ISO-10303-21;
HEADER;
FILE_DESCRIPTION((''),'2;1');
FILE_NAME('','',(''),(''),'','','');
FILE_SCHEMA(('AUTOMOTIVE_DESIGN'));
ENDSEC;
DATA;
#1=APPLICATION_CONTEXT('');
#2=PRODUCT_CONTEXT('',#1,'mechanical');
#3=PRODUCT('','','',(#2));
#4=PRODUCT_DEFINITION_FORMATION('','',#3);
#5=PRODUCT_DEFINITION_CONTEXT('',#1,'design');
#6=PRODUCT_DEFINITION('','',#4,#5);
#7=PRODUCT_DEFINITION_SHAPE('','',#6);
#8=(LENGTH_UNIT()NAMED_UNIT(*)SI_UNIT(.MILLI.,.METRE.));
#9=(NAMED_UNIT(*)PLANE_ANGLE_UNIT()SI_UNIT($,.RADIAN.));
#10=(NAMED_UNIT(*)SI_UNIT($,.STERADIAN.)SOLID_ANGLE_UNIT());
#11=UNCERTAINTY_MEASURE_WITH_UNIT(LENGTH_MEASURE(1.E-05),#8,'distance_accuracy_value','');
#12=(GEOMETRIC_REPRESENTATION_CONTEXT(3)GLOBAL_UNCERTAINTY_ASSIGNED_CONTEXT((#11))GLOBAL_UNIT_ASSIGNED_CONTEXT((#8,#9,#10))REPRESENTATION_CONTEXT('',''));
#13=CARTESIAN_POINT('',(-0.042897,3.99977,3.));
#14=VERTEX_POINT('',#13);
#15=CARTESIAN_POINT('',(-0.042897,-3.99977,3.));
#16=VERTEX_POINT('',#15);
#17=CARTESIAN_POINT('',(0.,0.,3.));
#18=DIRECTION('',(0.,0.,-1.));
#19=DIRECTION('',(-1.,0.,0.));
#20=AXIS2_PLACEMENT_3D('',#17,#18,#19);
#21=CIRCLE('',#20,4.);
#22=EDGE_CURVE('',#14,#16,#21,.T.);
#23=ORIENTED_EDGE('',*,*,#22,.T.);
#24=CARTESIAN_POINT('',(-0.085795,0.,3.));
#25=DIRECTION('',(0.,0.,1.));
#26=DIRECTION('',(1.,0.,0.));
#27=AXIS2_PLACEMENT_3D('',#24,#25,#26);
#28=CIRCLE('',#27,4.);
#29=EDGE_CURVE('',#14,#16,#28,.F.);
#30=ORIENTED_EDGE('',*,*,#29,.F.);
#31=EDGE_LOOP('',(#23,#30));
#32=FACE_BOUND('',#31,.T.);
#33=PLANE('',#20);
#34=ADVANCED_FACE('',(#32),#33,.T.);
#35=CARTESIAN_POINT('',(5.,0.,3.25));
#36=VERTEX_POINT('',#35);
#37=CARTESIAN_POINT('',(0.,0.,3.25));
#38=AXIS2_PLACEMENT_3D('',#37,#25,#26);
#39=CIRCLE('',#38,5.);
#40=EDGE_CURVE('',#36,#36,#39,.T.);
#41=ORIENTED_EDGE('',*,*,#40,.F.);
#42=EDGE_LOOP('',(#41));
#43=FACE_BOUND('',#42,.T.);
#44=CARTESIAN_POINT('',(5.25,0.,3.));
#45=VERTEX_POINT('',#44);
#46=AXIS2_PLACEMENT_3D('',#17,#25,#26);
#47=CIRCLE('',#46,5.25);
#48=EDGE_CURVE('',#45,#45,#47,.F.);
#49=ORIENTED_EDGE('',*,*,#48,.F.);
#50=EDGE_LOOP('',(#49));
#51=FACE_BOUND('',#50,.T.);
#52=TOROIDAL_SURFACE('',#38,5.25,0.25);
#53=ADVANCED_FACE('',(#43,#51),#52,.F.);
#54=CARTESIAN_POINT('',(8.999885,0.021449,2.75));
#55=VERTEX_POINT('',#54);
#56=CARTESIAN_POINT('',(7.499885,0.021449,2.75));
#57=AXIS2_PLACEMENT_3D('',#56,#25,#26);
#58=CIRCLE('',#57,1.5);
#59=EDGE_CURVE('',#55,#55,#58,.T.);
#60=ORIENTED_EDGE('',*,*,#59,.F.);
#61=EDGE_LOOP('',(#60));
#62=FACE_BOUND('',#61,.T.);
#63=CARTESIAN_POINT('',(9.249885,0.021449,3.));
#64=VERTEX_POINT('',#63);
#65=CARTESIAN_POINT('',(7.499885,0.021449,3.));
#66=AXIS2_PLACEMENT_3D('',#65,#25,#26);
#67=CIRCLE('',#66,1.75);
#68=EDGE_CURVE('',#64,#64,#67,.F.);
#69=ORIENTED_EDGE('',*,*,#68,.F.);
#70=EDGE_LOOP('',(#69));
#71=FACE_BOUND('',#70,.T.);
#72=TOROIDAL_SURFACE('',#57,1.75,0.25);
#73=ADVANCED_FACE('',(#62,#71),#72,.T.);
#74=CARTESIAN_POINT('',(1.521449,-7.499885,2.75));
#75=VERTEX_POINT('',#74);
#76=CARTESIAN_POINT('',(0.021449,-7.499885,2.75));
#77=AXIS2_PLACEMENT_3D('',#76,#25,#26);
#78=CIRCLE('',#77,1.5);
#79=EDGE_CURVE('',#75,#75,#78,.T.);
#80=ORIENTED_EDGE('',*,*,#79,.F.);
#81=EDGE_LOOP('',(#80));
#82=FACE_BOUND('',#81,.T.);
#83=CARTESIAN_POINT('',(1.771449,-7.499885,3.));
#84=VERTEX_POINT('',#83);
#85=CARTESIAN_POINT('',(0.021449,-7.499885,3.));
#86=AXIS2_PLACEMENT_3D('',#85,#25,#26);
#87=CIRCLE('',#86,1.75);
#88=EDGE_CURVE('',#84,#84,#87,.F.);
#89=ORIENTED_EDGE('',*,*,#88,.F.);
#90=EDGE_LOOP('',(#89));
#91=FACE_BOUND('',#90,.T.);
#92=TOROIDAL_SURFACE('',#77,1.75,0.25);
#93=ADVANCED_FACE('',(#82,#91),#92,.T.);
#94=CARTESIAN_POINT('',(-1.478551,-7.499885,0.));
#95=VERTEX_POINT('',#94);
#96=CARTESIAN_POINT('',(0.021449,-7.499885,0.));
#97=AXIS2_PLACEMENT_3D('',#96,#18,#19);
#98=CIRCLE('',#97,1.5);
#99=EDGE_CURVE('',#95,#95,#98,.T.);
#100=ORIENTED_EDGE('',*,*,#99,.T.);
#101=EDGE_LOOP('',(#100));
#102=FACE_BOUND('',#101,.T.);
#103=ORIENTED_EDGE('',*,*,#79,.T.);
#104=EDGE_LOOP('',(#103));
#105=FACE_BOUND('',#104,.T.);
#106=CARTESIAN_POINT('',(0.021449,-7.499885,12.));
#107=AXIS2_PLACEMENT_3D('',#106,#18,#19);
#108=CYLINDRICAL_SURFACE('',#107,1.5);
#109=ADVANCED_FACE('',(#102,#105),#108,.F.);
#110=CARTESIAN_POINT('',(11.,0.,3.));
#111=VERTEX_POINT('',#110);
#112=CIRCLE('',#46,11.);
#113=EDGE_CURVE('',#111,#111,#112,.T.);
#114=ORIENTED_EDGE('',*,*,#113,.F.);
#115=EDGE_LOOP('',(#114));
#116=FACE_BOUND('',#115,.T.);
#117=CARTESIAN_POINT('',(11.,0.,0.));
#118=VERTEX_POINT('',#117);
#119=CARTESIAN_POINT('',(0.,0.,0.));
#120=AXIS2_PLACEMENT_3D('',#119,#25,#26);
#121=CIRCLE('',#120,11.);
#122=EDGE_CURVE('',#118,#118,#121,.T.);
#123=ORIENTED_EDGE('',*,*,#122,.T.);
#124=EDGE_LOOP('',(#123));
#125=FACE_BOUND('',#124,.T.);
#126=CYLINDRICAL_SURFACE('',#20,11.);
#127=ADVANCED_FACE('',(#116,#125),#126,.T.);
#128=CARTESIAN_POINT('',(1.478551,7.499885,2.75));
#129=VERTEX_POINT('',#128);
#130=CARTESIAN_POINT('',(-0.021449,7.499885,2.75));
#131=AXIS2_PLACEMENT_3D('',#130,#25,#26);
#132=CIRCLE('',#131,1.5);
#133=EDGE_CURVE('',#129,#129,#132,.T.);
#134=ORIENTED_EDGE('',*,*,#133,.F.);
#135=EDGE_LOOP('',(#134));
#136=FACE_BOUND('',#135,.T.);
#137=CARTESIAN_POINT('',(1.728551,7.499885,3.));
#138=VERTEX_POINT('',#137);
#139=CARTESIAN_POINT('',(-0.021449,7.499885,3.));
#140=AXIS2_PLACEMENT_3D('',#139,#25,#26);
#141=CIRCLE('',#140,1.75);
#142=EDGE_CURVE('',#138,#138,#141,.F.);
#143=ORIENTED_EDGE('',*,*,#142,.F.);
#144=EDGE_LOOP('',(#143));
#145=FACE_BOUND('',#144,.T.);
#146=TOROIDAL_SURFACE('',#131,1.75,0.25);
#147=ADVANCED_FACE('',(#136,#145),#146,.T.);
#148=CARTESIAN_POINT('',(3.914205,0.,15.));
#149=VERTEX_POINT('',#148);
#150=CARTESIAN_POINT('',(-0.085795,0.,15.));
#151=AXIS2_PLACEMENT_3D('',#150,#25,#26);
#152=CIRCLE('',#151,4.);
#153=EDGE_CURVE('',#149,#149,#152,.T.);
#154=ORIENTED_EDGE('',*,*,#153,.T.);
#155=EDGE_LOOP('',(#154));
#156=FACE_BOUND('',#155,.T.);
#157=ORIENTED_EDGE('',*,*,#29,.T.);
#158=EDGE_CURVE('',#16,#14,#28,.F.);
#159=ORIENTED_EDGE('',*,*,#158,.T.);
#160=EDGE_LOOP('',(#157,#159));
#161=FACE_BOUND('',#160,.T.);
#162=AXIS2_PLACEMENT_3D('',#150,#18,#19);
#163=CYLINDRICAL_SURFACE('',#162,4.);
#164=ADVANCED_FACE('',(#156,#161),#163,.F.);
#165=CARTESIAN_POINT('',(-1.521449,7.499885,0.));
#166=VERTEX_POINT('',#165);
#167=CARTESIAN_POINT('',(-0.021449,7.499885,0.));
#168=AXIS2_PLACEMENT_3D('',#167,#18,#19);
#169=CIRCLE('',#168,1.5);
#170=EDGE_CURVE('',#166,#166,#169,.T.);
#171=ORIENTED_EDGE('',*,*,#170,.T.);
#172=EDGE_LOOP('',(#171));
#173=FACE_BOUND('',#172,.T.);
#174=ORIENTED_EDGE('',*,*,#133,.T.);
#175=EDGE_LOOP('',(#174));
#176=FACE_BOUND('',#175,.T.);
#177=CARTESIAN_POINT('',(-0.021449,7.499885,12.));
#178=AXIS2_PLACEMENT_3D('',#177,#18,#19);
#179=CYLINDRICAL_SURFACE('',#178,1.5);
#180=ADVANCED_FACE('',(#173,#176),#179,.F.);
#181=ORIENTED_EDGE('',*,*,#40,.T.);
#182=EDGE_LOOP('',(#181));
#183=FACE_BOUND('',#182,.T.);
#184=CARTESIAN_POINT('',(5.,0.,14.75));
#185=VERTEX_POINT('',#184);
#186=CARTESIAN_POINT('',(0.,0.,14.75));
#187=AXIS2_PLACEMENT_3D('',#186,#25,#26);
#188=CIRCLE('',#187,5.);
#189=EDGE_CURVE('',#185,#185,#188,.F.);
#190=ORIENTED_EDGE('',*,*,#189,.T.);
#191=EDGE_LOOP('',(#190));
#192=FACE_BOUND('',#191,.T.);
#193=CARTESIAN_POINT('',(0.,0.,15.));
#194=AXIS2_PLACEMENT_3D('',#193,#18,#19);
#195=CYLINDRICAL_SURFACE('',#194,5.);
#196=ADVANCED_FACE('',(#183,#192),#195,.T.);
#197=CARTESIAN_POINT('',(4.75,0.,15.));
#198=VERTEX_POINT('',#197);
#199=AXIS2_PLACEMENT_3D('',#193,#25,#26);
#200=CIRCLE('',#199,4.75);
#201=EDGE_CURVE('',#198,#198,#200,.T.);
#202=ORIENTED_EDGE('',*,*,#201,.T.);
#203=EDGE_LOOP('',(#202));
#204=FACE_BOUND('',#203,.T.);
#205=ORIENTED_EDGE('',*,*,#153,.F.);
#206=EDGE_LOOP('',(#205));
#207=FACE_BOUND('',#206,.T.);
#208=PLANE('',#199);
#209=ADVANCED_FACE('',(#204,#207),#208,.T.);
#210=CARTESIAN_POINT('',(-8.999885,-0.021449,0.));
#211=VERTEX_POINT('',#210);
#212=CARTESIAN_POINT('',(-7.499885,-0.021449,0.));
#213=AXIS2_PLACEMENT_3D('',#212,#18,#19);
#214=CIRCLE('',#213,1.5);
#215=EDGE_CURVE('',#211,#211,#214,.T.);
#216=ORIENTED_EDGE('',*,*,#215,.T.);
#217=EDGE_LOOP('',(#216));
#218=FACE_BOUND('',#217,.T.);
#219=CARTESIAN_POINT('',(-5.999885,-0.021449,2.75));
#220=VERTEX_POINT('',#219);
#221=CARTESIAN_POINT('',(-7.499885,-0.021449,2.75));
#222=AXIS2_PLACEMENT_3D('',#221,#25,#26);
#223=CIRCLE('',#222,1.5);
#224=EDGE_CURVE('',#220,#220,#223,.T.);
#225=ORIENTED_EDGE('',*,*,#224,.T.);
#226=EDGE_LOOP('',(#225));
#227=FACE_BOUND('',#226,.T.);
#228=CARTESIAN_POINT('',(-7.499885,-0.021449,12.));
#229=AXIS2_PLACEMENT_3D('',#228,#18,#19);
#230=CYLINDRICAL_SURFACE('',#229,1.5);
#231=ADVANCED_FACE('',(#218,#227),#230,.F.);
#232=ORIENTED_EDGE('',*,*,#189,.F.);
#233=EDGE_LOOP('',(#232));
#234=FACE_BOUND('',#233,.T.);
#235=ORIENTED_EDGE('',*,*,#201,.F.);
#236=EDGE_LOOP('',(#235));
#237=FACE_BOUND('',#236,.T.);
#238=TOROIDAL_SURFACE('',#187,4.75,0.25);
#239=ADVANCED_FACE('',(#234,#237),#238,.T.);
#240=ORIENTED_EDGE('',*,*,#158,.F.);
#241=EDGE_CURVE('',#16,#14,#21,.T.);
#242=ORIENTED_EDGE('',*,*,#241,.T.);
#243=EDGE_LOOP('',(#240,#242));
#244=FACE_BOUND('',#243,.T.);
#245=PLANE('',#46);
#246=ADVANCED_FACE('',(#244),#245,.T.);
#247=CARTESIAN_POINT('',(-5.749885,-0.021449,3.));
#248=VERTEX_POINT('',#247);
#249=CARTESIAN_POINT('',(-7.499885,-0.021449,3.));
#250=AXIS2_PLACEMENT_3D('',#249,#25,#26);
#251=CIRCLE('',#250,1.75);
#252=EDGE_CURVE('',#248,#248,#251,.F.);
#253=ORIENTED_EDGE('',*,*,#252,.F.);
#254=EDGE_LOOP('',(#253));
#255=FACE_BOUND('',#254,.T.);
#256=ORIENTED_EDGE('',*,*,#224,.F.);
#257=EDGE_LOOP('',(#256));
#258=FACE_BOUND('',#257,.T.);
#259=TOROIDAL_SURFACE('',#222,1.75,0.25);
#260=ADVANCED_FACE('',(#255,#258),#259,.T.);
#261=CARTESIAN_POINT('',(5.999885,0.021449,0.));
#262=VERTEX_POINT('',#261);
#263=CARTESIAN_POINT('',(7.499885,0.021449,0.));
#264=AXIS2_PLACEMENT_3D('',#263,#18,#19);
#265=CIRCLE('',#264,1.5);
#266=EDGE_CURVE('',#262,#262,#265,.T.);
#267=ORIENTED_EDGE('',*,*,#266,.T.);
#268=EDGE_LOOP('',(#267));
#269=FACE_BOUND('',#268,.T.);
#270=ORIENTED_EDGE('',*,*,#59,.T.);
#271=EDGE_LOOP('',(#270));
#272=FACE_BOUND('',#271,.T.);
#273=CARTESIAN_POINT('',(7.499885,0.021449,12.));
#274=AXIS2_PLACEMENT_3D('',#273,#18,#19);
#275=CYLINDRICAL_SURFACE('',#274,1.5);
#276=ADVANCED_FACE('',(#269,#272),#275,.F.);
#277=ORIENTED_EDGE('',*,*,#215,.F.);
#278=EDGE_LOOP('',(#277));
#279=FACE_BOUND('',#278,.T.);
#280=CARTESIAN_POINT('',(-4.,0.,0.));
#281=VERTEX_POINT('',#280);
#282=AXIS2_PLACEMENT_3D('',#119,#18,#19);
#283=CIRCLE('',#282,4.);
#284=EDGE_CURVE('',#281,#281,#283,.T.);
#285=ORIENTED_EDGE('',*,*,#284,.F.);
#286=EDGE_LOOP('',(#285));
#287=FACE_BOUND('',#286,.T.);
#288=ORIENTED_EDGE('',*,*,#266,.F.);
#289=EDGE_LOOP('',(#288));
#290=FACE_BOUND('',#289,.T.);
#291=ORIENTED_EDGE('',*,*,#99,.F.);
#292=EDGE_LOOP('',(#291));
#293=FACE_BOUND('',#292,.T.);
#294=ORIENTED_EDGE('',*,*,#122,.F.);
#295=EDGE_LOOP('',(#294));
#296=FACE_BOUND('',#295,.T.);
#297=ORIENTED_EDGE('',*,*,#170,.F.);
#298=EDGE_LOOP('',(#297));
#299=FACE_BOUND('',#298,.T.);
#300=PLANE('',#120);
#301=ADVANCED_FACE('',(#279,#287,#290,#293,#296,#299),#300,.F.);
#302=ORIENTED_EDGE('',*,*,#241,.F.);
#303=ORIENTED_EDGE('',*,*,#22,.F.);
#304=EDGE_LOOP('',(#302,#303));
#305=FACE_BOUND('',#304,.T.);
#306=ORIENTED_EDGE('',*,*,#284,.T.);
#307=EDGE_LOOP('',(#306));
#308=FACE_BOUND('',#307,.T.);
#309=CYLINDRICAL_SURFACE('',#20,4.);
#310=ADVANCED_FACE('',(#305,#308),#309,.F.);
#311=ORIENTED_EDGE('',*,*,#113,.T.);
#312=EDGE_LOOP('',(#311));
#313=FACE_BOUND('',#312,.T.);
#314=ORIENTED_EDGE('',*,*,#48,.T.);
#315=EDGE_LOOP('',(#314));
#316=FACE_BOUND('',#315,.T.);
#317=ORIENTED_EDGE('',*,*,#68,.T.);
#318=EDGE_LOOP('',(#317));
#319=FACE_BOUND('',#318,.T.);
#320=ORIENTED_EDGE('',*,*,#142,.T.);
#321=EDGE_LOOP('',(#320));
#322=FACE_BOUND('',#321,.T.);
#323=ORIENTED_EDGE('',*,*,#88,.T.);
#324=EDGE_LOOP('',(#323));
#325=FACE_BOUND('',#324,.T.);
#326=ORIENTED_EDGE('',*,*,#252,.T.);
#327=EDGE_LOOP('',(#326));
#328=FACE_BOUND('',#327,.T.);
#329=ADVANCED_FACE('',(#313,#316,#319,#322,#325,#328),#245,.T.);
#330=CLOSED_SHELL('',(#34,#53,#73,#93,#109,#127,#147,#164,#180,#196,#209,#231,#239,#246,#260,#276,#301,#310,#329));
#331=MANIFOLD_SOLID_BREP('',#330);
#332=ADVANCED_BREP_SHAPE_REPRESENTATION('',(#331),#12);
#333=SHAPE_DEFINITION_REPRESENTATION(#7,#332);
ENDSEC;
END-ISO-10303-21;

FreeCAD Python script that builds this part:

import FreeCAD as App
import Part
import Sketcher
from FreeCAD import Vector
Q = App.Units.Quantity


def edges_at(feature, points):
    """Names of the edges that pass closest to the given points."""
    edges = feature.Shape.Edges
    near = lambda p: min(range(len(edges)), key=lambda i: edges[i].distToShape(Part.Vertex(*p))[0])
    return sorted({f"Edge{near(p) + 1}" for p in points})

doc = App.newDocument("Part")
body = doc.addObject("PartDesign::Body", "Body")

# Sketch on XY plane
sketch1 = body.newObject("Sketcher::SketchObject", "Sketch")
sketch1.AttachmentSupport = (doc.getObject("XY_Plane"), [""])
sketch1.MapMode = "FlatFace"
sketch1.addGeometry(Part.Circle(Vector(0, 0, 0), Vector(0, 0, 1), 11), False)
sketch1.addConstraint(Sketcher.Constraint("Coincident", 0, 3, -1, 1))
sketch1.addConstraint(Sketcher.Constraint("Diameter", 0, Q("22 mm")))
pad1 = body.newObject("PartDesign::Pad", "Pad")
pad1.Profile = sketch1
pad1.Length = 3

# Sketch on XY plane
sketch2 = body.newObject("Sketcher::SketchObject", "Sketch001")
sketch2.AttachmentSupport = (doc.getObject("XY_Plane"), [""])
sketch2.MapMode = "FlatFace"
sketch2.AttachmentOffset = App.Placement(Vector(0, 0, 3), App.Rotation())
sketch2.addGeometry(Part.Circle(Vector(0, 0, 0), Vector(0, 0, 1), 5), False)
sketch2.addGeometry(Part.Circle(Vector(-0.1, 0, 0), Vector(0, 0, 1), 4), False)
sketch2.addConstraint(Sketcher.Constraint("Coincident", 0, 3, -1, 1))
sketch2.addConstraint(Sketcher.Constraint("PointOnObject", 1, 3, -1))
sketch2.addConstraint(Sketcher.Constraint("Diameter", 0, Q("10 mm")))
sketch2.addConstraint(Sketcher.Constraint("Diameter", 1, Q("8 mm")))
sketch2.addConstraint(Sketcher.Constraint("DistanceX", 1, 3, -1, 1, Q("0.085795 mm")))
pad2 = body.newObject("PartDesign::Pad", "Pad001")
pad2.Profile = sketch2
pad2.Length = 12

# Sketch on XY plane
sketch3 = body.newObject("Sketcher::SketchObject", "Sketch002")
sketch3.AttachmentSupport = (doc.getObject("XY_Plane"), [""])
sketch3.MapMode = "FlatFace"
sketch3.addGeometry(Part.Circle(Vector(0, 0, 0), Vector(0, 0, 1), 4), False)
sketch3.addConstraint(Sketcher.Constraint("Coincident", 0, 3, -1, 1))
sketch3.addConstraint(Sketcher.Constraint("Diameter", 0, Q("8 mm")))
pocket1 = body.newObject("PartDesign::Pocket", "Pocket")
pocket1.Profile = sketch3
pocket1.Length = 3
pocket1.Reversed = True

# Sketch on XY plane
sketch4 = body.newObject("Sketcher::SketchObject", "Sketch003")
sketch4.AttachmentSupport = (doc.getObject("XY_Plane"), [""])
sketch4.MapMode = "FlatFace"
sketch4.addGeometry(Part.Circle(Vector(0, 7.5, 0), Vector(0, 0, 1), 1.5), False)
sketch4.addGeometry(Part.Circle(Vector(-7.5, 0, 0), Vector(0, 0, 1), 1.5), False)
sketch4.addGeometry(Part.Circle(Vector(0, -7.5, 0), Vector(0, 0, 1), 1.5), False)
sketch4.addGeometry(Part.Circle(Vector(7.5, 0, 0), Vector(0, 0, 1), 1.5), False)
sketch4.addConstraint(Sketcher.Constraint("Equal", 0, 1))
sketch4.addConstraint(Sketcher.Constraint("Equal", 1, 2))
sketch4.addConstraint(Sketcher.Constraint("Equal", 2, 3))
sketch4.addConstraint(Sketcher.Constraint("Symmetric", 0, 3, 2, 3, -1, 1))
sketch4.addConstraint(Sketcher.Constraint("Symmetric", 1, 3, 3, 3, -1, 1))
sketch4.addConstraint(Sketcher.Constraint("Diameter", 0, Q("3 mm")))
sketch4.addConstraint(Sketcher.Constraint("DistanceX", 0, 3, -1, 1, Q("0.021449 mm")))
sketch4.addConstraint(Sketcher.Constraint("DistanceY", 1, 3, -1, 1, Q("0.021449 mm")))
sketch4.addConstraint(Sketcher.Constraint("DistanceY", 2, 3, 0, 3, Q("14.99977 mm")))
sketch4.addConstraint(Sketcher.Constraint("DistanceX", 1, 3, 3, 3, Q("14.99977 mm")))
pocket2 = body.newObject("PartDesign::Pocket", "Pocket001")
pocket2.Profile = sketch4
pocket2.Length = 12
pocket2.Reversed = True
doc.recompute()

fillet = body.newObject("PartDesign::Fillet", "Fillet")
fillet.Base = (pocket2, edges_at(pocket2, [
    (1.479, 7.5, 3),
    (-6, -0.021, 3),
    (1.521, -7.5, 3),
    (9, 0.021, 3),
]))
fillet.Radius = 0.25
doc.recompute()

fillet2 = body.newObject("PartDesign::Fillet", "Fillet001")
fillet2.Base = (fillet, edges_at(fillet, [(-5, 0, 15)]))
fillet2.Radius = 0.25
doc.recompute()

fillet3 = body.newObject("PartDesign::Fillet", "Fillet002")
fillet3.Base = (fillet2, edges_at(fillet2, [(-5, 0, 3)]))
fillet3.Radius = 0.25

doc.recompute()
